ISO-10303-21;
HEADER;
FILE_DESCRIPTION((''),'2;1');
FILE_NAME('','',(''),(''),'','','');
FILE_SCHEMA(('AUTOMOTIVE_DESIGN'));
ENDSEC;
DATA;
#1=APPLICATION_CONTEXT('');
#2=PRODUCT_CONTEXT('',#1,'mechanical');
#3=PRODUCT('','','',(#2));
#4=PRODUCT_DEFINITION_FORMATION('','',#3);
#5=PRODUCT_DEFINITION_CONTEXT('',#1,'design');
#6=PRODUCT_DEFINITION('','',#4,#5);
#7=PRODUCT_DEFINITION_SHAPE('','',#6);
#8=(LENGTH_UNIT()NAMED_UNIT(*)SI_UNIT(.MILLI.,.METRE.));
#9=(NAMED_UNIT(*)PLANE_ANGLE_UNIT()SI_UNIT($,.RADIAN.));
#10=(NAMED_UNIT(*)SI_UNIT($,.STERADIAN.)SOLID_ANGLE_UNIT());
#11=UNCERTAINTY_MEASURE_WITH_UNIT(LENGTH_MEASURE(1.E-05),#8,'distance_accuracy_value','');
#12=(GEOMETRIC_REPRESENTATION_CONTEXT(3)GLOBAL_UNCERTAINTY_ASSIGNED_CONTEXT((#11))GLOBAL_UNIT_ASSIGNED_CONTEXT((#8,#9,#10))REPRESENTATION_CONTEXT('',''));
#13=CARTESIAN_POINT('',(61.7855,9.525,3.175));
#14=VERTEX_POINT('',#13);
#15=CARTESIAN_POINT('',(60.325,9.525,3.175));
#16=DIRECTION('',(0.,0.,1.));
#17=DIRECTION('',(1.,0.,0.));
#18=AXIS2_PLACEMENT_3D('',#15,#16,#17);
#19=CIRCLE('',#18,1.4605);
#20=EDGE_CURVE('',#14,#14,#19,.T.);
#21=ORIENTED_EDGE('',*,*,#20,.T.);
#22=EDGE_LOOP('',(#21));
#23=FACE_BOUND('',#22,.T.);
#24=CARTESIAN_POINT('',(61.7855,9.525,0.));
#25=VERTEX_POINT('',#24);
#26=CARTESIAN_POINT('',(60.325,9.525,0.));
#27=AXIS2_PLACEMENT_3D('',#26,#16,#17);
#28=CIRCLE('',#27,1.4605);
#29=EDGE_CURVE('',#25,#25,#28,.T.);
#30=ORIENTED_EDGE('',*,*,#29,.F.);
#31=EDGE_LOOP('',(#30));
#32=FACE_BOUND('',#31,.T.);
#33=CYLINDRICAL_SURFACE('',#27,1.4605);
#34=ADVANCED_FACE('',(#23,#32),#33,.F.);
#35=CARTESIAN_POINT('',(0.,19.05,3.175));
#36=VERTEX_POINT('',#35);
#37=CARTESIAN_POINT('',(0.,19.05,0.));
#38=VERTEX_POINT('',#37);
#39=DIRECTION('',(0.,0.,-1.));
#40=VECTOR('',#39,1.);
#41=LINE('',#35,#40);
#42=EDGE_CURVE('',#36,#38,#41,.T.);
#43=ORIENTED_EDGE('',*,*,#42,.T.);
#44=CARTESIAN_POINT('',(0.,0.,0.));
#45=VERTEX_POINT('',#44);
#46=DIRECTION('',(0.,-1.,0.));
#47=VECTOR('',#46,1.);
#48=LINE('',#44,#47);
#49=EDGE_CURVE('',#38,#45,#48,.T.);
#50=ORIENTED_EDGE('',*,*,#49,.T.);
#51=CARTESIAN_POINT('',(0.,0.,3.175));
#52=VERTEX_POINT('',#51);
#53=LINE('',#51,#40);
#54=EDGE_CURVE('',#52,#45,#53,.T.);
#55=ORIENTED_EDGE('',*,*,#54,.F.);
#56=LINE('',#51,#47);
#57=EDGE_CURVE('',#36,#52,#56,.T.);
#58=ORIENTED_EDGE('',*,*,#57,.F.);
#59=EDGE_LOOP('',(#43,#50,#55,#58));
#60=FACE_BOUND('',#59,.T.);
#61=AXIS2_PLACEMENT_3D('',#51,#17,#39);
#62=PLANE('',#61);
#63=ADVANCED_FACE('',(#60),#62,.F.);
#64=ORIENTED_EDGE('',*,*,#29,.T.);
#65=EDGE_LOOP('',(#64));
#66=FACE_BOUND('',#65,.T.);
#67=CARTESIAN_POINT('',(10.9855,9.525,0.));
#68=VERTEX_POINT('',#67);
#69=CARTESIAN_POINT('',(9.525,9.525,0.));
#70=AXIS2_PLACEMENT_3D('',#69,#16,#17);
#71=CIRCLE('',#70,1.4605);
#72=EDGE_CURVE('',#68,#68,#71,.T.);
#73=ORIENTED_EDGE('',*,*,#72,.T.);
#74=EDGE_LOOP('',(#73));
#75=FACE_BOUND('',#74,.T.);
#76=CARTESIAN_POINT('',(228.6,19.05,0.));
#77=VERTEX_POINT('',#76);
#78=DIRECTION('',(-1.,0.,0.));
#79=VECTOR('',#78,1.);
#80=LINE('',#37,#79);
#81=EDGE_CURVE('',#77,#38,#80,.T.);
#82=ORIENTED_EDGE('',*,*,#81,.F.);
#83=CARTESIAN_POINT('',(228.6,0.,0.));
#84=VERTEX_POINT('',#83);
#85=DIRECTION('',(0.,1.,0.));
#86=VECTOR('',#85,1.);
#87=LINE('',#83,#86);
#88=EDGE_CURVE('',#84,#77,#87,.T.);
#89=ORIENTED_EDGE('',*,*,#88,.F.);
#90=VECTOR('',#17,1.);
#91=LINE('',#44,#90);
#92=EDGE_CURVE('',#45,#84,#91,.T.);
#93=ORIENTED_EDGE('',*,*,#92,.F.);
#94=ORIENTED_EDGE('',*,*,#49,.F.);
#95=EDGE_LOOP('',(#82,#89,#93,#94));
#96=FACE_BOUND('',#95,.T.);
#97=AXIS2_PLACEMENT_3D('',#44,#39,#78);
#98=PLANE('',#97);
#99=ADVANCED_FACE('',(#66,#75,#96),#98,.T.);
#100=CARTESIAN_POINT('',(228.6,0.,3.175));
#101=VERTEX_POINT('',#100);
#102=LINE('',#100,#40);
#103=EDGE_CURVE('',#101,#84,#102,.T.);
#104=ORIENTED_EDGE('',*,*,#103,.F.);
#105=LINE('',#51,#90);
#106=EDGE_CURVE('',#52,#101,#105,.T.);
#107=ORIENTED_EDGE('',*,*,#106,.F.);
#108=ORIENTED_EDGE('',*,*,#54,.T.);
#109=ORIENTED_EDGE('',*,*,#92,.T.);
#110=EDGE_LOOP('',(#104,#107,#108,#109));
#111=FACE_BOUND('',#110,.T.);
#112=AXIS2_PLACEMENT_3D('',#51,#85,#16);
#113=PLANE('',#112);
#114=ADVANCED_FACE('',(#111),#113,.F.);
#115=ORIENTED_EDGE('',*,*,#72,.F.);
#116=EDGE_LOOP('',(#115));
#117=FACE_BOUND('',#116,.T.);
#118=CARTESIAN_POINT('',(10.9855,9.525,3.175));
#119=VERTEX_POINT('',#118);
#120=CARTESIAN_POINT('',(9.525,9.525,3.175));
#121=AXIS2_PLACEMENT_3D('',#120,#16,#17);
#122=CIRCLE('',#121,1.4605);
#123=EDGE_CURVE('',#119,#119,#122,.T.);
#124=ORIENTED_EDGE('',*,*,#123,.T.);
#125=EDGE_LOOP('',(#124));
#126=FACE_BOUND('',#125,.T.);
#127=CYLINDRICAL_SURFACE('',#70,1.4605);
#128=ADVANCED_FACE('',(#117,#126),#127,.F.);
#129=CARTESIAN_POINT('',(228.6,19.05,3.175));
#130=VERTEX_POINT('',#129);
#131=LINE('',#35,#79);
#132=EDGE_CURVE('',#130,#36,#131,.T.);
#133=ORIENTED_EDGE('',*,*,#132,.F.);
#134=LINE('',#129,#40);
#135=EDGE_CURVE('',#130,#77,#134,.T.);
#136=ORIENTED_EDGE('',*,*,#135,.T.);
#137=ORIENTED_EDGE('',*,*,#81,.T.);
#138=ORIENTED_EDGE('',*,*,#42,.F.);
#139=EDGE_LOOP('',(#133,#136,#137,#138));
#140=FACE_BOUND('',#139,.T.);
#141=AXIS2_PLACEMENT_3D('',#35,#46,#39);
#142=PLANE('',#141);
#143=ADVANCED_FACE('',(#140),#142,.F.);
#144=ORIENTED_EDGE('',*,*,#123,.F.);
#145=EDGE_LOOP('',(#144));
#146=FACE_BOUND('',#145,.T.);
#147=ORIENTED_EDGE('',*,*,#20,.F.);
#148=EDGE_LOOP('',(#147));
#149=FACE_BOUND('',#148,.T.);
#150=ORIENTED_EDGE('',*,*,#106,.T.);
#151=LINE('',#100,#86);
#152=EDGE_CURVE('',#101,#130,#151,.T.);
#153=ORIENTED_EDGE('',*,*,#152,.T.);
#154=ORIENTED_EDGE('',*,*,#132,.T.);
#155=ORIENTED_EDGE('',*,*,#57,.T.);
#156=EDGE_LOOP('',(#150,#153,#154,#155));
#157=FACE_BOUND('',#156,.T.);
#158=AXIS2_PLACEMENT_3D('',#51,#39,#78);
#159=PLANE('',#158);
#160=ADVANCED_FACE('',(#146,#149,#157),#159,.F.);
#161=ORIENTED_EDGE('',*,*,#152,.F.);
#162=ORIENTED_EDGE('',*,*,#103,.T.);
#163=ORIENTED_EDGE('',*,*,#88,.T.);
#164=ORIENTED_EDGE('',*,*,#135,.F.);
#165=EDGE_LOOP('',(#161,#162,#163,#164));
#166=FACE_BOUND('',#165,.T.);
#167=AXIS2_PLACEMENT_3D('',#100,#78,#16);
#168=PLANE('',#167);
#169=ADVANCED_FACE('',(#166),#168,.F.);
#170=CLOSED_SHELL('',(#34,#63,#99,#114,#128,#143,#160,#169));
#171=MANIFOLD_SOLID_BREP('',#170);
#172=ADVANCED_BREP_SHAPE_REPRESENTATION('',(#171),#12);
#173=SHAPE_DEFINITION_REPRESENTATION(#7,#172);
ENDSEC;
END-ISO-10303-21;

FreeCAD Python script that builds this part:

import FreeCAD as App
import Part
import Sketcher

V = App.Vector
Q = App.Units.Quantity

doc = App.newDocument("Part")
body = doc.addObject("PartDesign::Body", "Body")

# Sketch on XY plane
sketch1 = doc.addObject("Sketcher::SketchObject", "Sketch")
body.addObject(sketch1)
sketch1.AttachmentSupport = (doc.XY_Plane, [""])
sketch1.MapMode = "FlatFace"
sketch1.addGeometry(Part.LineSegment(V(0, 19.05, 0), V(0, 0, 0)), False)
sketch1.addGeometry(Part.LineSegment(V(0, 0, 0), V(228.6, 0, 0)), False)
sketch1.addGeometry(Part.LineSegment(V(228.6, 0, 0), V(228.6, 19.05, 0)), False)
sketch1.addGeometry(Part.LineSegment(V(228.6, 19.05, 0), V(0, 19.05, 0)), False)
sketch1.addConstraint(Sketcher.Constraint("Coincident", 0, 2, 1, 1))
sketch1.addConstraint(Sketcher.Constraint("Coincident", 1, 2, 2, 1))
sketch1.addConstraint(Sketcher.Constraint("Coincident", 2, 2, 3, 1))
sketch1.addConstraint(Sketcher.Constraint("Coincident", 3, 2, 0, 1))
sketch1.addConstraint(Sketcher.Constraint("Vertical", 0))
sketch1.addConstraint(Sketcher.Constraint("Horizontal", 1))
sketch1.addConstraint(Sketcher.Constraint("Vertical", 2))
sketch1.addConstraint(Sketcher.Constraint("Horizontal", 3))
sketch1.addConstraint(Sketcher.Constraint("Coincident", 0, 2, -1, 1))
sketch1.addConstraint(Sketcher.Constraint("DistanceX", 1, 1, 1, 2, Q("9 in")))
sketch1.addConstraint(Sketcher.Constraint("DistanceY", 0, 2, 0, 1, Q("0.75 in")))
pad1 = doc.addObject("PartDesign::Pad", "Pad")
body.addObject(pad1)
pad1.Profile = sketch1
pad1.Length = Q("0.125 in")

# Sketch on XY plane
sketch2 = doc.addObject("Sketcher::SketchObject", "Sketch001")
body.addObject(sketch2)
sketch2.AttachmentSupport = (doc.XY_Plane, [""])
sketch2.MapMode = "FlatFace"
sketch2.AttachmentOffset = App.Placement(V(0, 0, 0.125 * 25.4), App.Rotation())
sketch2.addGeometry(Part.Circle(V(9.525, 9.525, 0), V(0, 0, 1), 1.4605), False)
sketch2.addGeometry(Part.Circle(V(60.325, 9.525, 0), V(0, 0, 1), 1.4605), False)
sketch2.addConstraint(Sketcher.Constraint("Equal", 0, 1))
sketch2.addConstraint(Sketcher.Constraint("Horizontal", 0, 3, 1, 3))
sketch2.addConstraint(Sketcher.Constraint("Diameter", 0, Q("0.115 in")))
sketch2.addConstraint(Sketcher.Constraint("DistanceX", 0, 3, 1, 3, Q("2 in")))
sketch2.addConstraint(Sketcher.Constraint("DistanceX", -1, 1, 0, 3, Q("0.375 in")))
sketch2.addConstraint(Sketcher.Constraint("DistanceY", -1, 1, 0, 3, Q("0.375 in")))
pocket1 = doc.addObject("PartDesign::Pocket", "Pocket")
body.addObject(pocket1)
pocket1.Profile = sketch2
pocket1.Type = "ThroughAll"

doc.recompute()
